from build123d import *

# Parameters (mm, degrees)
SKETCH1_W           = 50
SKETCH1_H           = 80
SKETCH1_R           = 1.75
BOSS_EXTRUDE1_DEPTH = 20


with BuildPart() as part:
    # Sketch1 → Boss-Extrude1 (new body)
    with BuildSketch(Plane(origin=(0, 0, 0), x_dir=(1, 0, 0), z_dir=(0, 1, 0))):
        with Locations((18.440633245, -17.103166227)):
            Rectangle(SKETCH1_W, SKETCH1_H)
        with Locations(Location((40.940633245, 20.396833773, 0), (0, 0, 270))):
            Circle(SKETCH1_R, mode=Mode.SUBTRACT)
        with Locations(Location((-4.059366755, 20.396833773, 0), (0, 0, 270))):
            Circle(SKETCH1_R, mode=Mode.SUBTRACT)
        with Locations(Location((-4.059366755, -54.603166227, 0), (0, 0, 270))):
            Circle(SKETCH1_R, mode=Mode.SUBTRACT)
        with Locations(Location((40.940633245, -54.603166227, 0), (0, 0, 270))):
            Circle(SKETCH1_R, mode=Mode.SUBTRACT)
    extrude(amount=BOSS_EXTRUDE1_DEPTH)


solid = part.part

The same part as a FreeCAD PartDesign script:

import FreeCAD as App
import Part
import Sketcher


def add_polygon(sketch, points):
    """Adds a closed chain of lines whose ends are joined by coincident constraints."""
    first, n = sketch.GeometryCount, len(points)
    for a, b in zip(points, points[1:] + points[:1]):
        sketch.addGeometry(Part.LineSegment(App.Vector(*a, 0), App.Vector(*b, 0)), False)
    for i in range(n):
        sketch.addConstraint(Sketcher.Constraint("Coincident", first + i, 2, first + (i + 1) % n, 1))

doc = App.newDocument("Part")
body = doc.addObject("PartDesign::Body", "Body")

sketch1 = doc.addObject("Sketcher::SketchObject", "Sketch")
body.addObject(sketch1)
sketch1.AttachmentSupport = (doc.XZ_Plane, [""])
sketch1.MapMode = "FlatFace"
add_polygon(sketch1, [(-6.6, -22.9), (-6.6, 57.1), (43.4, 57.1), (43.4, -22.9)])
sketch1.addGeometry(Part.Circle(App.Vector(-4.1, 54.6, 0), App.Vector(0, 0, 1), 1.8), False)
sketch1.addGeometry(Part.Circle(App.Vector(40.9, 54.6, 0), App.Vector(0, 0, 1), 1.8), False)
sketch1.addGeometry(Part.Circle(App.Vector(-4.1, -20.4, 0), App.Vector(0, 0, 1), 1.8), False)
sketch1.addGeometry(Part.Circle(App.Vector(40.9, -20.4, 0), App.Vector(0, 0, 1), 1.8), False)
sketch1.addConstraint([
    Sketcher.Constraint("Vertical", 0),
    Sketcher.Constraint("Horizontal", 1),
    Sketcher.Constraint("Vertical", 2),
    Sketcher.Constraint("Horizontal", 3),
    Sketcher.Constraint("Equal", 4, 5),
    Sketcher.Constraint("Equal", 5, 6),
    Sketcher.Constraint("Equal", 6, 7),
    Sketcher.Constraint("Horizontal", 4, 3, 5, 3),
    Sketcher.Constraint("Horizontal", 6, 3, 7, 3),
    Sketcher.Constraint("Vertical", 4, 3, 6, 3),
    Sketcher.Constraint("Vertical", 5, 3, 7, 3),
    Sketcher.Constraint("Diameter", 4, 3.5),
    Sketcher.Constraint("DistanceX", 1, 1, 1, 2, 50.0),
    Sketcher.Constraint("DistanceY", 0, 1, 0, 2, 80.0),
    Sketcher.Constraint("DistanceX", 4, 3, 5, 3, 45.0),
    Sketcher.Constraint("DistanceY", 6, 3, 4, 3, 75.0),
    Sketcher.Constraint("DistanceX", 0, 2, 4, 3, 2.5),
    Sketcher.Constraint("DistanceY", 4, 3, 0, 2, 2.5),
    Sketcher.Constraint("DistanceX", 4, 3, -1, 1, 4.059367),
    Sketcher.Constraint("DistanceY", -1, 1, 4, 3, 54.603166),
])
pad1 = doc.addObject("PartDesign::Pad", "Pad")
body.addObject(pad1)
pad1.Profile = sketch1
pad1.Length = 20
pad1.Reversed = True

doc.recompute()
